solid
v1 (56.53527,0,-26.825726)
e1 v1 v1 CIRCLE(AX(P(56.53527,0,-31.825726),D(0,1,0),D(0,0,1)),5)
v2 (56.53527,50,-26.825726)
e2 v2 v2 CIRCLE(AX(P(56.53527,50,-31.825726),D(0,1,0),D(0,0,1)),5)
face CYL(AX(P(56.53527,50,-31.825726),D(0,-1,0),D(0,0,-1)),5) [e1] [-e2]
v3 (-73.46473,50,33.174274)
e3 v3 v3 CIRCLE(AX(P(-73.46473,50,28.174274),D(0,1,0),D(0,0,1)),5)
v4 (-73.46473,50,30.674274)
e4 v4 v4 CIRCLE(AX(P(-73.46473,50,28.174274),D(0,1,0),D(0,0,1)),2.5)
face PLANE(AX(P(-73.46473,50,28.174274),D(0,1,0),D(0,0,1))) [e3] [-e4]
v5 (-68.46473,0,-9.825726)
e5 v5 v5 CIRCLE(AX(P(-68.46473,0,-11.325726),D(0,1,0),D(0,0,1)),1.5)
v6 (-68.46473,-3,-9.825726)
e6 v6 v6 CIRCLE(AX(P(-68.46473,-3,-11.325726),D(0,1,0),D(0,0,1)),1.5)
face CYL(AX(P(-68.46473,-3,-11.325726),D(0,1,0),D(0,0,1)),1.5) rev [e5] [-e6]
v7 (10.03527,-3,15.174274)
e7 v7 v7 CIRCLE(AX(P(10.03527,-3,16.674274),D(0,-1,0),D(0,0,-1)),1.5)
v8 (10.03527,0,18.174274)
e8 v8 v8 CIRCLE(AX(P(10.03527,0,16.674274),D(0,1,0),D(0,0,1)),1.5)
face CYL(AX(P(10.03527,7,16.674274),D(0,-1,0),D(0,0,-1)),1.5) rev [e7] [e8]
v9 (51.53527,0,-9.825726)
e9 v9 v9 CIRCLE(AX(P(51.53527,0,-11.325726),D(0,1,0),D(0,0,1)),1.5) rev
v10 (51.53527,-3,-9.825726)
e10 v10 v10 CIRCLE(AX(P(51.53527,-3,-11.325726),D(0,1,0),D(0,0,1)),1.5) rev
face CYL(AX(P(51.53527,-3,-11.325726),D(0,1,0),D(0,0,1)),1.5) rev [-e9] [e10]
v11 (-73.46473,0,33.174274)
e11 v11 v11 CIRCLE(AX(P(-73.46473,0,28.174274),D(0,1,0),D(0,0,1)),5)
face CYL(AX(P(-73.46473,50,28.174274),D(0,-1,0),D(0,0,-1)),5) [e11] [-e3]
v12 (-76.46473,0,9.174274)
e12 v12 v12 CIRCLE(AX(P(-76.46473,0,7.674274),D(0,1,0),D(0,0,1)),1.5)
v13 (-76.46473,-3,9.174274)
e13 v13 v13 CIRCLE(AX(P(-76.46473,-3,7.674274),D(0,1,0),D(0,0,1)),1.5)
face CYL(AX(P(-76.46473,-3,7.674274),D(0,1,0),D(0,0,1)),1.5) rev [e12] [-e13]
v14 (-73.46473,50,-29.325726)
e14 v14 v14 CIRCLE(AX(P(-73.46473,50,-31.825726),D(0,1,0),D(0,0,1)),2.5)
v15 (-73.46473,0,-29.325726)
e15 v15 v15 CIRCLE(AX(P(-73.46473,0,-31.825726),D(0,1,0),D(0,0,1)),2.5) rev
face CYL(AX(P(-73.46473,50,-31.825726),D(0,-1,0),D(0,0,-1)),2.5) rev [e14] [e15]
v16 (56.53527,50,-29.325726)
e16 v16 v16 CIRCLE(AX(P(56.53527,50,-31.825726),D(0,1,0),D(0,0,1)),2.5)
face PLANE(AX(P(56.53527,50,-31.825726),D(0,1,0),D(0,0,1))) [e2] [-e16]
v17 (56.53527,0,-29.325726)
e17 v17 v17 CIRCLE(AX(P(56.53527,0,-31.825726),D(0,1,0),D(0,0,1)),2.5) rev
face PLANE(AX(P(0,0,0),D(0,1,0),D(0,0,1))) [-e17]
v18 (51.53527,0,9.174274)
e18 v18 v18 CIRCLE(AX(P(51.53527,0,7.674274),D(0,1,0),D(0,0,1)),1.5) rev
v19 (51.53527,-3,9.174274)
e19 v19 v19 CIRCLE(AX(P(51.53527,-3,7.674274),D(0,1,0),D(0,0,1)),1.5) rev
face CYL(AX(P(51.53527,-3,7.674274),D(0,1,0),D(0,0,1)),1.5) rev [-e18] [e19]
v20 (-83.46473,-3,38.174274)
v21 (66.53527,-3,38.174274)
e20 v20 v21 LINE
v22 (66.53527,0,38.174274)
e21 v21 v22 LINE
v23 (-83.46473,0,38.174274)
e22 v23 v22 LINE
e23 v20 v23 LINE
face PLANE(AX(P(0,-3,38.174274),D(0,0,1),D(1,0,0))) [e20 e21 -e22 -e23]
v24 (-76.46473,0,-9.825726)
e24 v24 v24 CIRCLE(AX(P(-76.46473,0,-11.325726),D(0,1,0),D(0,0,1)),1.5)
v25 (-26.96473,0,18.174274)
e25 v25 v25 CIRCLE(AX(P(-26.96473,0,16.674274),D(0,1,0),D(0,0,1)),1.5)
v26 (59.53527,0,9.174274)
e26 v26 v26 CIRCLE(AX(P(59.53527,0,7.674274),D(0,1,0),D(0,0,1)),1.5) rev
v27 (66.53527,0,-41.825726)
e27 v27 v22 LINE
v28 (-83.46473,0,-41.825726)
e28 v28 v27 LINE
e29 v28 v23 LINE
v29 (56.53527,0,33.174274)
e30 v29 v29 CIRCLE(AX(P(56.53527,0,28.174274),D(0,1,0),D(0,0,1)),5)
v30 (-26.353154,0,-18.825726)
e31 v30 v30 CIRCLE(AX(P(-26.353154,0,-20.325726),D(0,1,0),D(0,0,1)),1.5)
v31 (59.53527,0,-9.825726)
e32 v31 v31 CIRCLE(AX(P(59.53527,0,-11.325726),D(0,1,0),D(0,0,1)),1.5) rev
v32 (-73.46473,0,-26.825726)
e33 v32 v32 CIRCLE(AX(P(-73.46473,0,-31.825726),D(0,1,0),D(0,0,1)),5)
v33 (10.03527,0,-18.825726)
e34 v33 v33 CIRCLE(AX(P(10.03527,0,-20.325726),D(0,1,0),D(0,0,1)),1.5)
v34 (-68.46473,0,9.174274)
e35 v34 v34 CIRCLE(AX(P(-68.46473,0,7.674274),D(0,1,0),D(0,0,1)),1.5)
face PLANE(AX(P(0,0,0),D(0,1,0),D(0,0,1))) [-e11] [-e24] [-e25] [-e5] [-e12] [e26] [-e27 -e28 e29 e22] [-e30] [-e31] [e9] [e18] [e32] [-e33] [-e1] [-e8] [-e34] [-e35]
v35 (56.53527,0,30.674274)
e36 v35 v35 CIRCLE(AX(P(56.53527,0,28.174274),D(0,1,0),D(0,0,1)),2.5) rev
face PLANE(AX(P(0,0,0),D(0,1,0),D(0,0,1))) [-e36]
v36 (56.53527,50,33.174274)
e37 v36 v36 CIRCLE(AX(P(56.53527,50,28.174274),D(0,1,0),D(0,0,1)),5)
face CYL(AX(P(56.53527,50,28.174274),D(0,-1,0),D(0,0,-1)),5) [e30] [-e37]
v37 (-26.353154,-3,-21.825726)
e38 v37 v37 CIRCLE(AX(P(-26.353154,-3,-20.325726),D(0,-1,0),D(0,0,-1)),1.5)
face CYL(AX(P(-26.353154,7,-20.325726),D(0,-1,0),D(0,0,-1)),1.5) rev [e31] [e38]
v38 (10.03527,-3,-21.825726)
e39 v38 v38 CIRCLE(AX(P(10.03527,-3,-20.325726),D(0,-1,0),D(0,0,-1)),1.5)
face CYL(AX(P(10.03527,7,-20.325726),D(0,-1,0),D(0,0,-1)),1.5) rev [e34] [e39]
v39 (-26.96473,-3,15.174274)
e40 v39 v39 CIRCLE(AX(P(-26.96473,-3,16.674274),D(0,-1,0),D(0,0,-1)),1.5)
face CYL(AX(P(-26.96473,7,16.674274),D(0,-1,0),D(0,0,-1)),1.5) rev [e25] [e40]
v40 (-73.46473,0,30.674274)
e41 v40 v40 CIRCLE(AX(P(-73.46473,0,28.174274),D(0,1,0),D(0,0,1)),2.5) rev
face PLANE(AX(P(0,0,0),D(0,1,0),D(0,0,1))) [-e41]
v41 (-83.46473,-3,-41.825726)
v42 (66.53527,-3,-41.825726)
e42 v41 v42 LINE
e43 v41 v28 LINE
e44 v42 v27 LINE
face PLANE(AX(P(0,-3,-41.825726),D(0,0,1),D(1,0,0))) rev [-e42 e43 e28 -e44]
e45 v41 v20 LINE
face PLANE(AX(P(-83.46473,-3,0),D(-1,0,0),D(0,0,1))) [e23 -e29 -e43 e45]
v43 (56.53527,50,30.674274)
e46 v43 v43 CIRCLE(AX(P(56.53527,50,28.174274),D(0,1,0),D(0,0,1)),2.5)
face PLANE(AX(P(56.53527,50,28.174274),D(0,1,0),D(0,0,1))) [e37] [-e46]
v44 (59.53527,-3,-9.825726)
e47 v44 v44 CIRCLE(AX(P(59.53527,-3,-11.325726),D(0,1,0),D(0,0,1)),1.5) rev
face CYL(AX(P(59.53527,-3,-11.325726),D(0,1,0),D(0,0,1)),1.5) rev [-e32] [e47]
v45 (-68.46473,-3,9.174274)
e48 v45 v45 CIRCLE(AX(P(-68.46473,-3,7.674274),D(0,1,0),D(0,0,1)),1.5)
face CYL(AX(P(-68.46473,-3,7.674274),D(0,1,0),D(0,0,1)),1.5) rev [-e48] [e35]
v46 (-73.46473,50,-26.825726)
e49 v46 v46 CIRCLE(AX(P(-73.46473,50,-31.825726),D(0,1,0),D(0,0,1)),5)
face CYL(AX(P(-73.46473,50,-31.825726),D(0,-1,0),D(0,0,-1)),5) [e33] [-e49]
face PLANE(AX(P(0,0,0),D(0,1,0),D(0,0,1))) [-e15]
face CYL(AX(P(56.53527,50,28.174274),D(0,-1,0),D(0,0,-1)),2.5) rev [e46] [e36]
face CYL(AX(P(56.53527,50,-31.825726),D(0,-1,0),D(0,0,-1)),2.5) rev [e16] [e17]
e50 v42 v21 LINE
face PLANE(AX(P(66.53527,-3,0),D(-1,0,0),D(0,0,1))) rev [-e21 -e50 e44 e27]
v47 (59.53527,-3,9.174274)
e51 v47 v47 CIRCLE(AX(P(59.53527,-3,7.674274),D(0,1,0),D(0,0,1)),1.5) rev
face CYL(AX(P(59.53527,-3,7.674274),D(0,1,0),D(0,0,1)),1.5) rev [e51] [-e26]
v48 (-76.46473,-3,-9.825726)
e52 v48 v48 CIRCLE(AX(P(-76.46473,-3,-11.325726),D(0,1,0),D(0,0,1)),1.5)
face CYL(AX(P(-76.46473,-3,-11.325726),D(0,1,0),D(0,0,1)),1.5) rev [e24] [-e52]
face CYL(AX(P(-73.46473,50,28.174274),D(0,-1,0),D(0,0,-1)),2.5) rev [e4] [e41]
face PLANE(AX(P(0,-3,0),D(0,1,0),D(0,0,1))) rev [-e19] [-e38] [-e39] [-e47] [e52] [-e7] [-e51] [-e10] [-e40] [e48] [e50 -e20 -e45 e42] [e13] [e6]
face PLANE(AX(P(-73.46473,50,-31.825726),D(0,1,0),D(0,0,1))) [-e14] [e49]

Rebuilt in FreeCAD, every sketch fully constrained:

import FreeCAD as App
import Part
import Sketcher
from FreeCAD import Vector


def add_polygon(sketch, points):
    """Adds a closed chain of lines whose ends are joined by coincident constraints."""
    first, n = sketch.GeometryCount, len(points)
    for a, b in zip(points, points[1:] + points[:1]):
        sketch.addGeometry(Part.LineSegment(App.Vector(*a, 0), App.Vector(*b, 0)), False)
    for i in range(n):
        sketch.addConstraint(Sketcher.Constraint("Coincident", first + i, 2, first + (i + 1) % n, 1))

doc = App.newDocument("Part")
body = doc.addObject("PartDesign::Body", "Body")

# Sketch on XZ plane
sketch1 = body.newObject("Sketcher::SketchObject", "Sketch")
sketch1.AttachmentSupport = (doc.getObject("XZ_Plane"), [""])
sketch1.MapMode = "FlatFace"
add_polygon(sketch1, [(-83.5, -41.8), (-83.5, 38.2), (66.5, 38.2), (66.5, -41.8)])  # lines 0-3
sketch1.addGeometry(Part.Circle(Vector(-76.5, 7.7, 0), Vector(0, 0, 1), 1.5), False)  # 4
sketch1.addGeometry(Part.Circle(Vector(-68.5, 7.7, 0), Vector(0, 0, 1), 1.5), False)  # 5
sketch1.addGeometry(Part.Circle(Vector(51.5, 7.7, 0), Vector(0, 0, 1), 1.5), False)  # 6
sketch1.addGeometry(Part.Circle(Vector(59.5, 7.7, 0), Vector(0, 0, 1), 1.5), False)  # 7
sketch1.addGeometry(Part.Circle(Vector(-76.5, -11.3, 0), Vector(0, 0, 1), 1.5), False)  # 8
sketch1.addGeometry(Part.Circle(Vector(-68.5, -11.3, 0), Vector(0, 0, 1), 1.5), False)  # 9
sketch1.addGeometry(Part.Circle(Vector(51.5, -11.3, 0), Vector(0, 0, 1), 1.5), False)  # 10
sketch1.addGeometry(Part.Circle(Vector(59.5, -11.3, 0), Vector(0, 0, 1), 1.5), False)  # 11
sketch1.addConstraint(Sketcher.Constraint("Vertical", 0))
sketch1.addConstraint(Sketcher.Constraint("Horizontal", 1))
sketch1.addConstraint(Sketcher.Constraint("Vertical", 2))
sketch1.addConstraint(Sketcher.Constraint("Horizontal", 3))
sketch1.addConstraint(Sketcher.Constraint("Equal", 4, 5))
sketch1.addConstraint(Sketcher.Constraint("Equal", 5, 6))
sketch1.addConstraint(Sketcher.Constraint("Equal", 6, 7))
sketch1.addConstraint(Sketcher.Constraint("Equal", 7, 8))
sketch1.addConstraint(Sketcher.Constraint("Equal", 8, 9))
sketch1.addConstraint(Sketcher.Constraint("Equal", 9, 10))
sketch1.addConstraint(Sketcher.Constraint("Equal", 10, 11))
sketch1.addConstraint(Sketcher.Constraint("Horizontal", 4, 3, 5, 3))
sketch1.addConstraint(Sketcher.Constraint("Horizontal", 5, 3, 6, 3))
sketch1.addConstraint(Sketcher.Constraint("Horizontal", 6, 3, 7, 3))
sketch1.addConstraint(Sketcher.Constraint("Horizontal", 8, 3, 9, 3))
sketch1.addConstraint(Sketcher.Constraint("Horizontal", 9, 3, 10, 3))
sketch1.addConstraint(Sketcher.Constraint("Horizontal", 10, 3, 11, 3))
sketch1.addConstraint(Sketcher.Constraint("Vertical", 4, 3, 8, 3))
sketch1.addConstraint(Sketcher.Constraint("Vertical", 5, 3, 9, 3))
sketch1.addConstraint(Sketcher.Constraint("Vertical", 6, 3, 10, 3))
sketch1.addConstraint(Sketcher.Constraint("Vertical", 7, 3, 11, 3))
sketch1.addConstraint(Sketcher.Constraint("Diameter", 4, 3.0))
sketch1.addConstraint(Sketcher.Constraint("DistanceX", 1, 1, 1, 2, 150.0))
sketch1.addConstraint(Sketcher.Constraint("DistanceY", 0, 1, 0, 2, 80.0))
sketch1.addConstraint(Sketcher.Constraint("DistanceX", 4, 3, 5, 3, 8.0))
sketch1.addConstraint(Sketcher.Constraint("DistanceX", 5, 3, 6, 3, 120.0))
sketch1.addConstraint(Sketcher.Constraint("DistanceX", 6, 3, 7, 3, 8.0))
sketch1.addConstraint(Sketcher.Constraint("DistanceY", 8, 3, 4, 3, 19.0))
sketch1.addConstraint(Sketcher.Constraint("DistanceX", 0, 2, 4, 3, 7.0))
sketch1.addConstraint(Sketcher.Constraint("DistanceY", 4, 3, 0, 2, 30.5))
sketch1.addConstraint(Sketcher.Constraint("DistanceX", 4, 3, -1, 1, 76.46473))
sketch1.addConstraint(Sketcher.Constraint("DistanceY", -1, 1, 4, 3, 7.674274))
pad1 = body.newObject("PartDesign::Pad", "Pad")
pad1.Profile = sketch1
pad1.Length = 3

# Sketch on XZ plane
sketch2 = body.newObject("Sketcher::SketchObject", "Sketch001")
sketch2.AttachmentSupport = (doc.getObject("XZ_Plane"), [""])
sketch2.MapMode = "FlatFace"
sketch2.addGeometry(Part.Circle(Vector(-73.5, -31.8, 0), Vector(0, 0, 1), 5), False)
sketch2.addGeometry(Part.Circle(Vector(-73.5, -31.8, 0), Vector(0, 0, 1), 2.5), False)
sketch2.addGeometry(Part.Circle(Vector(56.5, -31.8, 0), Vector(0, 0, 1), 5), False)
sketch2.addGeometry(Part.Circle(Vector(56.5, -31.8, 0), Vector(0, 0, 1), 2.5), False)
sketch2.addGeometry(Part.Circle(Vector(56.5, 28.2, 0), Vector(0, 0, 1), 5), False)
sketch2.addGeometry(Part.Circle(Vector(56.5, 28.2, 0), Vector(0, 0, 1), 2.5), False)
sketch2.addGeometry(Part.Circle(Vector(-73.5, 28.2, 0), Vector(0, 0, 1), 5), False)
sketch2.addGeometry(Part.Circle(Vector(-73.5, 28.2, 0), Vector(0, 0, 1), 2.5), False)
sketch2.addConstraint(Sketcher.Constraint("Coincident", 1, 3, 0, 3))
sketch2.addConstraint(Sketcher.Constraint("Coincident", 3, 3, 2, 3))
sketch2.addConstraint(Sketcher.Constraint("Coincident", 5, 3, 4, 3))
sketch2.addConstraint(Sketcher.Constraint("Coincident", 7, 3, 6, 3))
sketch2.addConstraint(Sketcher.Constraint("Equal", 0, 2))
sketch2.addConstraint(Sketcher.Constraint("Equal", 1, 3))
sketch2.addConstraint(Sketcher.Constraint("Equal", 2, 4))
sketch2.addConstraint(Sketcher.Constraint("Equal", 3, 5))
sketch2.addConstraint(Sketcher.Constraint("Equal", 4, 6))
sketch2.addConstraint(Sketcher.Constraint("Equal", 5, 7))
sketch2.addConstraint(Sketcher.Constraint("Horizontal", 1, 3, 2, 3))
sketch2.addConstraint(Sketcher.Constraint("Horizontal", 5, 3, 6, 3))
sketch2.addConstraint(Sketcher.Constraint("Vertical", 3, 3, 4, 3))
sketch2.addConstraint(Sketcher.Constraint("Vertical", 1, 3, 6, 3))
sketch2.addConstraint(Sketcher.Constraint("Diameter", 0, 10.0))
sketch2.addConstraint(Sketcher.Constraint("Diameter", 1, 5.0))
sketch2.addConstraint(Sketcher.Constraint("DistanceX", 0, 3, 2, 3, 130.0))
sketch2.addConstraint(Sketcher.Constraint("DistanceY", 2, 3, 4, 3, 60.0))
sketch2.addConstraint(Sketcher.Constraint("DistanceX", 0, 3, -1, 1, 73.46473))
sketch2.addConstraint(Sketcher.Constraint("DistanceY", 0, 3, -1, 1, 31.825726))
pad2 = body.newObject("PartDesign::Pad", "Pad001")
pad2.Profile = sketch2
pad2.Length = 50
pad2.Reversed = True

# Sketch on XZ plane
sketch3 = body.newObject("Sketcher::SketchObject", "Sketch002")
sketch3.AttachmentSupport = (doc.getObject("XZ_Plane"), [""])
sketch3.MapMode = "FlatFace"
sketch3.AttachmentOffset = App.Placement(Vector(0, 0, 3), App.Rotation())
sketch3.addGeometry(Part.Circle(Vector(-27, 16.7, 0), Vector(0, 0, 1), 1.5), False)
sketch3.addGeometry(Part.Circle(Vector(10, 16.7, 0), Vector(0, 0, 1), 1.5), False)
sketch3.addGeometry(Part.Circle(Vector(10, -20.3, 0), Vector(0, 0, 1), 1.5), False)
sketch3.addGeometry(Part.Circle(Vector(-26.4, -20.3, 0), Vector(0, 0, 1), 1.5), False)
sketch3.addConstraint(Sketcher.Constraint("Equal", 0, 1))
sketch3.addConstraint(Sketcher.Constraint("Equal", 1, 2))
sketch3.addConstraint(Sketcher.Constraint("Equal", 2, 3))
sketch3.addConstraint(Sketcher.Constraint("Horizontal", 0, 3, 1, 3))
sketch3.addConstraint(Sketcher.Constraint("Horizontal", 2, 3, 3, 3))
sketch3.addConstraint(Sketcher.Constraint("Vertical", 1, 3, 2, 3))
sketch3.addConstraint(Sketcher.Constraint("Diameter", 0, 3.0))
sketch3.addConstraint(Sketcher.Constraint("DistanceX", 0, 3, 1, 3, 37.0))
sketch3.addConstraint(Sketcher.Constraint("DistanceY", 2, 3, 1, 3, 37.0))
sketch3.addConstraint(Sketcher.Constraint("DistanceX", 0, 3, -1, 1, 26.96473))
sketch3.addConstraint(Sketcher.Constraint("DistanceY", -1, 1, 0, 3, 16.674274))
sketch3.addConstraint(Sketcher.Constraint("DistanceX", 3, 3, -1, 1, 26.353154))
pocket1 = body.newObject("PartDesign::Pocket", "Pocket")
pocket1.Profile = sketch3
pocket1.Length = 10

doc.recompute()
